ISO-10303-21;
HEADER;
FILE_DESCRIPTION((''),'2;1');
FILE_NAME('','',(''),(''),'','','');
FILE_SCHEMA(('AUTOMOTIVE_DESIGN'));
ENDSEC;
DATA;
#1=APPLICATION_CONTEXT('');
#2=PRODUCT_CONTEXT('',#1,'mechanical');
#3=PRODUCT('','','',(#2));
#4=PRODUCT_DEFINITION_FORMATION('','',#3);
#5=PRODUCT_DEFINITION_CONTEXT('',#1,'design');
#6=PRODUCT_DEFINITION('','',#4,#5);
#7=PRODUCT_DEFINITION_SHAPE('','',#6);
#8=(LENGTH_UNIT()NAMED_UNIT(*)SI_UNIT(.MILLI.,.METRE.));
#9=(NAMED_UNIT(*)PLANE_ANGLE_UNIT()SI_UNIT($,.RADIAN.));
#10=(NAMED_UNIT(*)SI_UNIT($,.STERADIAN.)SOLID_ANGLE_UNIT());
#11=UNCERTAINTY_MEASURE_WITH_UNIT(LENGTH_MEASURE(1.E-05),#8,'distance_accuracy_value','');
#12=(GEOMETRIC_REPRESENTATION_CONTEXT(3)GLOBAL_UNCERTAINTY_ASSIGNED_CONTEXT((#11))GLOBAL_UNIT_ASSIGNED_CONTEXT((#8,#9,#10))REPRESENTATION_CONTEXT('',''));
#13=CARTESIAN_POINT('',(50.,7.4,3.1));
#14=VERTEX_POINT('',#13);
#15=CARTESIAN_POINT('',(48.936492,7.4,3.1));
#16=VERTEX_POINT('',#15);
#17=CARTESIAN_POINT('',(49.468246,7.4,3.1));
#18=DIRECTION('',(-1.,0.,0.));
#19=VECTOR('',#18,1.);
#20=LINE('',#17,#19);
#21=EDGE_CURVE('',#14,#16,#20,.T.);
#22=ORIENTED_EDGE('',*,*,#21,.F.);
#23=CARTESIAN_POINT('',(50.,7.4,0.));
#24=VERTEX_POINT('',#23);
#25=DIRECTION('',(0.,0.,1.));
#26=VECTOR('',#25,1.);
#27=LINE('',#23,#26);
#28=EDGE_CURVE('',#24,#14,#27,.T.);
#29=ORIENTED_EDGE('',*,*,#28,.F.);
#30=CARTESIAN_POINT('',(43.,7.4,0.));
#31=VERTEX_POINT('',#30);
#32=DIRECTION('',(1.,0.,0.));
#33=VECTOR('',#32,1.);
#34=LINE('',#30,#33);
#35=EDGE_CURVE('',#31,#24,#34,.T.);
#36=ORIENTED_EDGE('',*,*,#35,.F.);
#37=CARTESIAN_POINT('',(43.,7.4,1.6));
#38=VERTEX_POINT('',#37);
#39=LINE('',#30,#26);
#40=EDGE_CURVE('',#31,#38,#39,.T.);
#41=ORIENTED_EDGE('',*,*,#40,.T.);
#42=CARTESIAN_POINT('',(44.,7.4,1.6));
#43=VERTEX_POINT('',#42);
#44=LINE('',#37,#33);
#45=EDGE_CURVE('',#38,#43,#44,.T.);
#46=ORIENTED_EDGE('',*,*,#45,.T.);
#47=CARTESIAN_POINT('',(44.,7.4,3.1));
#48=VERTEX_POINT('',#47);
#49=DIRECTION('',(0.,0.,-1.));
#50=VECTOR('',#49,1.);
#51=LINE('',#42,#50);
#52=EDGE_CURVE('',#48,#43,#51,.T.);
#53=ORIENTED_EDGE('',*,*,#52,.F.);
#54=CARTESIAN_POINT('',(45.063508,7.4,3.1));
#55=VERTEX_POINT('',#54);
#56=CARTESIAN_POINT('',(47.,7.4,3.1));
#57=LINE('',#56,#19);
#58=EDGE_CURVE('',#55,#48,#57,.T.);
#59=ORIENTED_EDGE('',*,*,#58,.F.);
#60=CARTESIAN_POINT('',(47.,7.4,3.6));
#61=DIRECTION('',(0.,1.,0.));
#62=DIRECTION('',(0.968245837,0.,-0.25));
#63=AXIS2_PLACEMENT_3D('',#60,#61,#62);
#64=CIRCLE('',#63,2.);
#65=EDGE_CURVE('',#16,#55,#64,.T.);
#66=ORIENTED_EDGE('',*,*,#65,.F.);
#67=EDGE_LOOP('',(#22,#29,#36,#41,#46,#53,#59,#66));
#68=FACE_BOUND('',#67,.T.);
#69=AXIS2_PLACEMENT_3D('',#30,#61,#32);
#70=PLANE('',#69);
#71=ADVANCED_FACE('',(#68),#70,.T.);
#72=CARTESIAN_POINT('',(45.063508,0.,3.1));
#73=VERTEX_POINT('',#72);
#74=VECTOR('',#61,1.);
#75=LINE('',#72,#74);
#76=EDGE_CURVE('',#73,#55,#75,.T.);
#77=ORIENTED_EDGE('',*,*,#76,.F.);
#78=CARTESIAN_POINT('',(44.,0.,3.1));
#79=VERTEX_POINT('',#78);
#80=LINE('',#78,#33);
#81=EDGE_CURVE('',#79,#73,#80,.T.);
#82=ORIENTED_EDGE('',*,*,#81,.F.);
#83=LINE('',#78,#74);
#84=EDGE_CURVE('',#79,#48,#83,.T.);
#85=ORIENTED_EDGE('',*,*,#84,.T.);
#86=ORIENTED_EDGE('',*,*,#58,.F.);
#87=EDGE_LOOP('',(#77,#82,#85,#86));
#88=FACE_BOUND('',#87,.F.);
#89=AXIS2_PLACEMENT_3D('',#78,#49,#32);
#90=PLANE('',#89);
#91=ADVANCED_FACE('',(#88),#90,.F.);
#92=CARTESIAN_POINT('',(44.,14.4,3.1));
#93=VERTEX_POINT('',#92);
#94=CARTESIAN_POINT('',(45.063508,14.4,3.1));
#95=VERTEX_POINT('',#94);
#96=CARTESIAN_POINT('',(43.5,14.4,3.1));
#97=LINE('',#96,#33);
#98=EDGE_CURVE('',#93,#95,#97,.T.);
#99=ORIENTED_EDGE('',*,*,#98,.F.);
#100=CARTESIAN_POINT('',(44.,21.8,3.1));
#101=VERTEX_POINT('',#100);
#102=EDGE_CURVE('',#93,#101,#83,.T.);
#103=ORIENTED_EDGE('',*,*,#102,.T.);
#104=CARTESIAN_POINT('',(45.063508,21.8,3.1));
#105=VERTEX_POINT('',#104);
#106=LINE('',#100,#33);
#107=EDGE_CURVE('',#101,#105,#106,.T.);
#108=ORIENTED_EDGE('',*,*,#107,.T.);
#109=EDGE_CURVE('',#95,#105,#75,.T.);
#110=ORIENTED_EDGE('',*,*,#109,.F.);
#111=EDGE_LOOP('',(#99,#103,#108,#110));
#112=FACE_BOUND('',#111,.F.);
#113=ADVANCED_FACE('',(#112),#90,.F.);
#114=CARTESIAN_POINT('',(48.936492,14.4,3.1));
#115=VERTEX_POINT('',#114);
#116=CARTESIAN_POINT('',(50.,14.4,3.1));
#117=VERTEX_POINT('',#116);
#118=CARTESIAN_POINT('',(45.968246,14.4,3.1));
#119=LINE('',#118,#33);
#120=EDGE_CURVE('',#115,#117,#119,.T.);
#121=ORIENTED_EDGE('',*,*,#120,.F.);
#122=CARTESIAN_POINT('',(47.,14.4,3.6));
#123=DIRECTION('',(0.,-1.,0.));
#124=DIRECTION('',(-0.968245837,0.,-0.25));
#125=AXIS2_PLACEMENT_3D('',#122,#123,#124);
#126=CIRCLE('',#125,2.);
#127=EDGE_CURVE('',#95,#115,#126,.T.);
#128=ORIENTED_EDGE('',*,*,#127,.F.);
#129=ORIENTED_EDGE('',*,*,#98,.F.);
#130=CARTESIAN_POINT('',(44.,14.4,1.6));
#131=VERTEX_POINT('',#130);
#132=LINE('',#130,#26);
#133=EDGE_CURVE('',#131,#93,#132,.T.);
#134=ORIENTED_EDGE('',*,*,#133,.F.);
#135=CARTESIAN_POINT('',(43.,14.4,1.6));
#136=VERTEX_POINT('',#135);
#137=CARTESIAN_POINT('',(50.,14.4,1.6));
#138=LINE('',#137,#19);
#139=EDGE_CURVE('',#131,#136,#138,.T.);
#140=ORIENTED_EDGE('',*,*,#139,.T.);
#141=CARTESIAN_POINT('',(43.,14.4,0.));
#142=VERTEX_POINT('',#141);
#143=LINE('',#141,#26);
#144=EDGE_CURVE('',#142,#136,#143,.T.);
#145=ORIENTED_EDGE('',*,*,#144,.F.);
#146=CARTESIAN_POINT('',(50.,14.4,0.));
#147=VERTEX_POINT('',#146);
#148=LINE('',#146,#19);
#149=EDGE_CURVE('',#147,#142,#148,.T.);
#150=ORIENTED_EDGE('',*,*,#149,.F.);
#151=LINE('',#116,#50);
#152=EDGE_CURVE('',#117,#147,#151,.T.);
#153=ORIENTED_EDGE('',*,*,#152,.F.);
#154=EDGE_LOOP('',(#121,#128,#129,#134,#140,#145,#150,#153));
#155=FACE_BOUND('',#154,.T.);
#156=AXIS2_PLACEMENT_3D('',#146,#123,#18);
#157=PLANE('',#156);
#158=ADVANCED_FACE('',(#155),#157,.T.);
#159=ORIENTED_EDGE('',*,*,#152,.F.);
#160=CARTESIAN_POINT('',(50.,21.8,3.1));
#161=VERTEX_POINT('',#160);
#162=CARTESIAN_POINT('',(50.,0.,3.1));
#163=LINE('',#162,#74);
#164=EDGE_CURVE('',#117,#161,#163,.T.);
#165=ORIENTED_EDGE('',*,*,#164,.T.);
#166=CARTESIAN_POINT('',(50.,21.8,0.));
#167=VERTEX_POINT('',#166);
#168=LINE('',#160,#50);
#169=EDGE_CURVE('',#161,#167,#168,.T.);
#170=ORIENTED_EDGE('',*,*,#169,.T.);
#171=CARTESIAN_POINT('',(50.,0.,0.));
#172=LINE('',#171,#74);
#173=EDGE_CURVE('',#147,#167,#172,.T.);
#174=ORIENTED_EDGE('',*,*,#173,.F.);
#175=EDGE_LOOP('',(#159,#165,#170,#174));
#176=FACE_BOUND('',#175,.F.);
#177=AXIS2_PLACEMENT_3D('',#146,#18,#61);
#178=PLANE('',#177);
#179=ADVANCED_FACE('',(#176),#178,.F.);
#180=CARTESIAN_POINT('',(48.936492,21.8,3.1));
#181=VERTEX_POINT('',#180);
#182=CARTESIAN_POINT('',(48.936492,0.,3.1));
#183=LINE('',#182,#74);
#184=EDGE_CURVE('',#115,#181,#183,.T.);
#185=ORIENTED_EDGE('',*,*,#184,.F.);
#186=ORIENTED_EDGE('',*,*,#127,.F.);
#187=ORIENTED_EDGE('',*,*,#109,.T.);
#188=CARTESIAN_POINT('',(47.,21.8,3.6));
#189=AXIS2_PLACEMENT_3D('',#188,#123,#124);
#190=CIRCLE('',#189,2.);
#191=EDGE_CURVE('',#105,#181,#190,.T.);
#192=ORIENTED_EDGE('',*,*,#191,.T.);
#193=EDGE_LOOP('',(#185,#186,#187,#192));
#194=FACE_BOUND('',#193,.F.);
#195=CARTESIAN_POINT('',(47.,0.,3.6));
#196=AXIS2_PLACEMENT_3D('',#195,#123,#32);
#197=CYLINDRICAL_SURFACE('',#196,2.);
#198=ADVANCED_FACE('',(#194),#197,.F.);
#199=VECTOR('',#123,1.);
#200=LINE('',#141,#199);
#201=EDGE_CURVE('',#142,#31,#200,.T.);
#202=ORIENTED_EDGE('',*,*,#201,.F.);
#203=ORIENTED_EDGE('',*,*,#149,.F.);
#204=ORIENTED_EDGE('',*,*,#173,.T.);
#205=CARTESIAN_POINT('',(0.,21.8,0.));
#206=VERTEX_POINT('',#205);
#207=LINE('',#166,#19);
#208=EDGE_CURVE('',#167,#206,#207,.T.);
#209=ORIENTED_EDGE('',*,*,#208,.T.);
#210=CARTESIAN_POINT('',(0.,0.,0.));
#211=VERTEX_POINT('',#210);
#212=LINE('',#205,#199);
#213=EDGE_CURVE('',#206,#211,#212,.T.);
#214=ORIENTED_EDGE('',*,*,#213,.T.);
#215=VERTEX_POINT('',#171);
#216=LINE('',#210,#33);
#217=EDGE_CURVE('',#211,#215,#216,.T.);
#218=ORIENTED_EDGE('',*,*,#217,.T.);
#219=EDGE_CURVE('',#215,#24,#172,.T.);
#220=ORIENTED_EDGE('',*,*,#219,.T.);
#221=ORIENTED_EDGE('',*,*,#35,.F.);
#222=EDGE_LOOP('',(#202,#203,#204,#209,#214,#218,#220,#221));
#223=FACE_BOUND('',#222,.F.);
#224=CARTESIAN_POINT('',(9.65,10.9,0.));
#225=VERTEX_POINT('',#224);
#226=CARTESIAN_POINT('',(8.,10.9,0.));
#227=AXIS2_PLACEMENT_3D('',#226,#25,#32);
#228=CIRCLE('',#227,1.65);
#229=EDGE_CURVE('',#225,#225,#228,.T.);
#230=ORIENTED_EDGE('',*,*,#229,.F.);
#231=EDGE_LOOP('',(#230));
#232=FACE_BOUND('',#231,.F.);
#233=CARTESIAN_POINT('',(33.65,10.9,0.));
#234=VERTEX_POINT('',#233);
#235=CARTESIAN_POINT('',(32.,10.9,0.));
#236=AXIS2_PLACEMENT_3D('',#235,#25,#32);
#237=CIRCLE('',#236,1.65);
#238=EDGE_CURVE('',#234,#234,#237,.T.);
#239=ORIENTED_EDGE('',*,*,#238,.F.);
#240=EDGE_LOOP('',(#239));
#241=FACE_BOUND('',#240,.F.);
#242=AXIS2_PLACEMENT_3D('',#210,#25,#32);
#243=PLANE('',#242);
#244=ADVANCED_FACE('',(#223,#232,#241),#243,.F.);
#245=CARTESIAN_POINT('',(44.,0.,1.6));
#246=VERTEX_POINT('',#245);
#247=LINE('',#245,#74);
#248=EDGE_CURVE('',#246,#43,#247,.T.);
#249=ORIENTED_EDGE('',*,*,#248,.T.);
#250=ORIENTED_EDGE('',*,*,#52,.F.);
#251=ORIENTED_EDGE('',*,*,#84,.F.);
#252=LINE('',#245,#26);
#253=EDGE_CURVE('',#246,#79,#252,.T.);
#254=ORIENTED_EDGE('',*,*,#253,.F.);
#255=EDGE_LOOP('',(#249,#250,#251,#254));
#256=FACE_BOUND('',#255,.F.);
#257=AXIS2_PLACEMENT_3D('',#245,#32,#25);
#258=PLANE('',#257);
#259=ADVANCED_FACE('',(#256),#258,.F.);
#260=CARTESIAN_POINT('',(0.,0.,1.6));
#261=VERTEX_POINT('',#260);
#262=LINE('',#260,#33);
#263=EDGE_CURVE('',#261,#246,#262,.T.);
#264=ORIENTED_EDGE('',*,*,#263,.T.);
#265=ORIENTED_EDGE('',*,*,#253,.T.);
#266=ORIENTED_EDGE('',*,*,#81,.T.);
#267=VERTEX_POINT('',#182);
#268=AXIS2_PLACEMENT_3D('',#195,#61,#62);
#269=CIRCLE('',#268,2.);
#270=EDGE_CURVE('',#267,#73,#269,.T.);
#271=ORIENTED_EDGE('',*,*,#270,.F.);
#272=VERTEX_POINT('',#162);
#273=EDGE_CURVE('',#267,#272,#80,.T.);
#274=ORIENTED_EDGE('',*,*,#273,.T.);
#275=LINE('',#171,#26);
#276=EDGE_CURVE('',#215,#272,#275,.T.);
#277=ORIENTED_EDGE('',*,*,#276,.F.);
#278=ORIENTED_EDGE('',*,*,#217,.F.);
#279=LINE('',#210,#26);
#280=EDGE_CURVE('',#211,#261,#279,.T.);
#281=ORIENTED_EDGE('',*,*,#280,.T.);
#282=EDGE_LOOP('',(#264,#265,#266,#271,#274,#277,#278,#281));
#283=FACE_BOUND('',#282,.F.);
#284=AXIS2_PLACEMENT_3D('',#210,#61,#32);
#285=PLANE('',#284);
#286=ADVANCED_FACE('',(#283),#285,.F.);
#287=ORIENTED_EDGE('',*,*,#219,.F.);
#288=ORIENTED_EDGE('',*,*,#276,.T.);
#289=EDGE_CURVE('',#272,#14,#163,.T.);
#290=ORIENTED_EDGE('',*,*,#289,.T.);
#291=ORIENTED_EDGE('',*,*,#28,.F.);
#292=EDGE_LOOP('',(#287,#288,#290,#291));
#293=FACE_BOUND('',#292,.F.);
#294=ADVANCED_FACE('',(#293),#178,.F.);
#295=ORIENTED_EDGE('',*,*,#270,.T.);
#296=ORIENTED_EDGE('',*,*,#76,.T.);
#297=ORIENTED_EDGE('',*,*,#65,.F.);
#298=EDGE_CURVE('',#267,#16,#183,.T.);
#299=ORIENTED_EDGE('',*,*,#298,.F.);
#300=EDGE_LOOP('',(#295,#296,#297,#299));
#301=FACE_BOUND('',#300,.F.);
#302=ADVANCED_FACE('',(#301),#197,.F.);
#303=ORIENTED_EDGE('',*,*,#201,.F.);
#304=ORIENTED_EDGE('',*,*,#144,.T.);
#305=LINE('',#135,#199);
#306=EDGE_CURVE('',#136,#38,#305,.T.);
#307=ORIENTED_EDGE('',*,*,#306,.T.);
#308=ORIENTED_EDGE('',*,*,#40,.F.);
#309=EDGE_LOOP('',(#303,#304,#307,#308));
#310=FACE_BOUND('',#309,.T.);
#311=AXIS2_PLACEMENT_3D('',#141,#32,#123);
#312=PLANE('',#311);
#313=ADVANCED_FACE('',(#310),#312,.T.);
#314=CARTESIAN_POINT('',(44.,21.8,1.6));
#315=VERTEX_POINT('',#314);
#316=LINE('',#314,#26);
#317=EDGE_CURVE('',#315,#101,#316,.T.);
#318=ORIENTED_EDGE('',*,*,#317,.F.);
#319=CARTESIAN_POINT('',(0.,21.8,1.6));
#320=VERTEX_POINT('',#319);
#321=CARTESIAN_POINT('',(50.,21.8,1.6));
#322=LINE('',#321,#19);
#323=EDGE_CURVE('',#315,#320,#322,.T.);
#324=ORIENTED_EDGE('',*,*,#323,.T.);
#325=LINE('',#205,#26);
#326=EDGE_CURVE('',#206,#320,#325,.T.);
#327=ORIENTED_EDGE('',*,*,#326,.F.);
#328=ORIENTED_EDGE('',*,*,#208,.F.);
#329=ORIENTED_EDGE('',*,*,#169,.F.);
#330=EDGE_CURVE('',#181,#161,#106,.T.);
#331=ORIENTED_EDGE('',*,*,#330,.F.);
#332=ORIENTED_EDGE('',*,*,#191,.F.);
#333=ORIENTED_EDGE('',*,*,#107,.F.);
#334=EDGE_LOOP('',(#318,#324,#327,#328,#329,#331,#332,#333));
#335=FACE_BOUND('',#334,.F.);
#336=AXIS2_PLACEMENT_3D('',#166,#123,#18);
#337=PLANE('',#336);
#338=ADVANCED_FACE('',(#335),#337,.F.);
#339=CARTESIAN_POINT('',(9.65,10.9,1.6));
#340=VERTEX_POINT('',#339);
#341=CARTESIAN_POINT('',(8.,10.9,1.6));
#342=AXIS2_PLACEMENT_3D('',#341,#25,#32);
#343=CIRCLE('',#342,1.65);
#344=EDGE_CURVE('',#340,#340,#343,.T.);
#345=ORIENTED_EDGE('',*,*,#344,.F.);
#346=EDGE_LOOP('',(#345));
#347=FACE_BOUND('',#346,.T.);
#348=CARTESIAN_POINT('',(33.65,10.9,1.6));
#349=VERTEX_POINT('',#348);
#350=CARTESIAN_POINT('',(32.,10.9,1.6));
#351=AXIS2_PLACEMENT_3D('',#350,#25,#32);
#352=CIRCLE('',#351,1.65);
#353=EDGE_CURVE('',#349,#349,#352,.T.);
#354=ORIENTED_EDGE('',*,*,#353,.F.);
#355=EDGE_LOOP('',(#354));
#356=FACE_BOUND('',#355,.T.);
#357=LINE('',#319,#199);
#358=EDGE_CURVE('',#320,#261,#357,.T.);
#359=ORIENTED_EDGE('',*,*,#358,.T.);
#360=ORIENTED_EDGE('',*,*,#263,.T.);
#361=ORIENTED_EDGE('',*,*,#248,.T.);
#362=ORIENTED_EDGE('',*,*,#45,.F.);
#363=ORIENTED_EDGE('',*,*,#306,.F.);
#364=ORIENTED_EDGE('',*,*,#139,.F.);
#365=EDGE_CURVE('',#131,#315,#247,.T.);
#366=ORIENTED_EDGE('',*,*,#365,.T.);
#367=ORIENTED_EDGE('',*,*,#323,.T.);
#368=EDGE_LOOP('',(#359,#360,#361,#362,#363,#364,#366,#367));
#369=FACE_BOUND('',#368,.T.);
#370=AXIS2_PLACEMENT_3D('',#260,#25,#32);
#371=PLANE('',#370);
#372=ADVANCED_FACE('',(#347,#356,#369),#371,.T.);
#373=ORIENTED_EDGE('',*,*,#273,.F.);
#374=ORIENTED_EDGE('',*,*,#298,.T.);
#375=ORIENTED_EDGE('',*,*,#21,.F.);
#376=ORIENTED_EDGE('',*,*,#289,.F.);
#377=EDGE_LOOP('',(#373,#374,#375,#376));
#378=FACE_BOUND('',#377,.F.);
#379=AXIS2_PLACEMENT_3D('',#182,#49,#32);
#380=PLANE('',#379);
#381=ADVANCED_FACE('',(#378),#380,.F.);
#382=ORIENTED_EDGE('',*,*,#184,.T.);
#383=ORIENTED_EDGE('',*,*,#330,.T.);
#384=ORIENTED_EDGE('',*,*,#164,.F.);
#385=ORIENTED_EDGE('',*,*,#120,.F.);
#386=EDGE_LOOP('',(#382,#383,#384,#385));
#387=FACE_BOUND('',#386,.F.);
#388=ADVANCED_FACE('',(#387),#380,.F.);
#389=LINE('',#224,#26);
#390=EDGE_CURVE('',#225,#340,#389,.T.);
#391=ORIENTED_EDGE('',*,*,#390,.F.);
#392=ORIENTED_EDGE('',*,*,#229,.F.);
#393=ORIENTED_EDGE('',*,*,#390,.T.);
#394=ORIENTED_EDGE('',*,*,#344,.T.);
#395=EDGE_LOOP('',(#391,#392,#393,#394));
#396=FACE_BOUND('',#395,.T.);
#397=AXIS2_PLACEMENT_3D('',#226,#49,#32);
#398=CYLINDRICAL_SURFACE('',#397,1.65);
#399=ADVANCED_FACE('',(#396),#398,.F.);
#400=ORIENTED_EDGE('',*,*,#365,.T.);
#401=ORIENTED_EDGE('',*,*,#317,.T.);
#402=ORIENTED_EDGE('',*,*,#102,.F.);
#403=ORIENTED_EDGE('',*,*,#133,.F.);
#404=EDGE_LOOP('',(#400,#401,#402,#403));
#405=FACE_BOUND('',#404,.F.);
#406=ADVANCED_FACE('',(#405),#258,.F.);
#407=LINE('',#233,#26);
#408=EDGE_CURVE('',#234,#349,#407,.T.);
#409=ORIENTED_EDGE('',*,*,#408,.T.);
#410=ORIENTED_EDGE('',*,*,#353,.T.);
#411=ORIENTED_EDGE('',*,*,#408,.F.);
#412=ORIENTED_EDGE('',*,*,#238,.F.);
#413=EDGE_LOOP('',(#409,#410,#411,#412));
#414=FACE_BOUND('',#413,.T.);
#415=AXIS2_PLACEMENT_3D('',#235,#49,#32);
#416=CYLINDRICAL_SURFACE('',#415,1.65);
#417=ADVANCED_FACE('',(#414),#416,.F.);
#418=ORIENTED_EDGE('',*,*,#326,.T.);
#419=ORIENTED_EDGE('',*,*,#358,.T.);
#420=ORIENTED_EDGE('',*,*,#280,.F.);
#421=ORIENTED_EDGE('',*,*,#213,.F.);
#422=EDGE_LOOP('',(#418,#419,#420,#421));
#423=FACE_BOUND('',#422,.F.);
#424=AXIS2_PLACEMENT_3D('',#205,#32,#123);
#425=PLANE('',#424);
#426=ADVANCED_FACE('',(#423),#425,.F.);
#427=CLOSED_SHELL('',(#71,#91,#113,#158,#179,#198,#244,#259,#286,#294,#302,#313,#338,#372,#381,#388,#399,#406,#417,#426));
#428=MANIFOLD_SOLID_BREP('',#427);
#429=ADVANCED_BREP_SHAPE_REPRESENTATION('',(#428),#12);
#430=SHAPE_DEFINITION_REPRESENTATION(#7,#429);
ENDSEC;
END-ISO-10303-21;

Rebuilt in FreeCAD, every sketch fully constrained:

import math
import FreeCAD as App
import Part
import Sketcher
from FreeCAD import Vector

doc = App.newDocument("Part")
params = doc.addObject("Spreadsheet::Sheet", "Params")
for row, (alias, value) in enumerate([
    ("sketch1_diameter", "3.3 mm"),
    ("sketch1_width", "50 mm"),
    ("sketch1_width2", "7 mm"),
    ("sketch1_height", "21.8 mm"),
    ("pad1_length", "1.6 mm"),
    ("sketch2_radius", "2 mm"),
    ("sketch2_width", "3 mm"),
    ("sketch2_height", "1.5 mm"),
    ("pad2_length", "21.8 mm"),
    ("sketch3_width", "7 mm"),
], start=1):
    params.set(f"A{row}", alias)
    params.set(f"B{row}", "=" + value)
    params.setAlias(f"B{row}", alias)

body = doc.addObject("PartDesign::Body", "Body")

sketch1 = body.newObject("Sketcher::SketchObject", "Sketch")
sketch1.AttachmentSupport = (doc.getObject("XY_Plane"), [""])
sketch1.MapMode = "FlatFace"
sketch1.addGeometry([
    Part.LineSegment(Vector(0, 21.8, 0), Vector(0, 0, 0)),
    Part.LineSegment(Vector(0, 0, 0), Vector(50, 0, 0)),
    Part.LineSegment(Vector(50, 0, 0), Vector(50, 7.4, 0)),
    Part.LineSegment(Vector(50, 7.4, 0), Vector(43, 7.4, 0)),
    Part.LineSegment(Vector(43, 7.4, 0), Vector(43, 14.4, 0)),
    Part.LineSegment(Vector(43, 14.4, 0), Vector(50, 14.4, 0)),
    Part.LineSegment(Vector(50, 14.4, 0), Vector(50, 21.8, 0)),
    Part.LineSegment(Vector(50, 21.8, 0), Vector(0, 21.8, 0)),
    Part.Circle(Vector(8, 10.9, 0), Vector(0, 0, 1), 1.65),
    Part.Circle(Vector(32, 10.9, 0), Vector(0, 0, 1), 1.65),
], False)
sketch1.addConstraint([
    Sketcher.Constraint("Coincident", 0, 2, 1, 1),
    Sketcher.Constraint("Coincident", 1, 2, 2, 1),
    Sketcher.Constraint("Coincident", 2, 2, 3, 1),
    Sketcher.Constraint("Coincident", 3, 2, 4, 1),
    Sketcher.Constraint("Coincident", 4, 2, 5, 1),
    Sketcher.Constraint("Coincident", 5, 2, 6, 1),
    Sketcher.Constraint("Coincident", 6, 2, 7, 1),
    Sketcher.Constraint("Coincident", 7, 2, 0, 1),
    Sketcher.Constraint("Vertical", 0),
    Sketcher.Constraint("Horizontal", 1),
    Sketcher.Constraint("Vertical", 2),
    Sketcher.Constraint("Horizontal", 3),
    Sketcher.Constraint("Vertical", 4),
    Sketcher.Constraint("Horizontal", 5),
    Sketcher.Constraint("Vertical", 6),
    Sketcher.Constraint("Horizontal", 7),
    Sketcher.Constraint("Coincident", 0, 2, -1, 1),
    Sketcher.Constraint("Equal", 8, 9),
    Sketcher.Constraint("Horizontal", 8, 3, 9, 3),
    Sketcher.Constraint("Vertical", 2, 2, 5, 2),
    Sketcher.Constraint("Equal", 5, 4),
    Sketcher.Constraint("Equal", 2, 6),
    Sketcher.Constraint("Diameter", 8, 3.3),
    Sketcher.Constraint("DistanceX", 1, 1, 1, 2, 50.0),
    Sketcher.Constraint("DistanceX", 3, 2, 3, 1, 7.0),
    Sketcher.Constraint("DistanceY", 0, 2, 0, 1, 21.8),
    Sketcher.Constraint("DistanceX", -1, 1, 8, 3, 8.0),
    Sketcher.Constraint("DistanceX", 8, 3, 9, 3, 24.0),
    Sketcher.Constraint("DistanceY", -1, 1, 8, 3, 10.9),
])
sketch1.setExpression("Constraints[22]", "Params.sketch1_diameter")
sketch1.setExpression("Constraints[23]", "Params.sketch1_width")
sketch1.setExpression("Constraints[24]", "Params.sketch1_width2")
sketch1.setExpression("Constraints[25]", "Params.sketch1_height")
pad1 = body.newObject("PartDesign::Pad", "Pad")
pad1.Profile = sketch1
pad1.setExpression("Length", "Params.pad1_length")

sketch2 = body.newObject("Sketcher::SketchObject", "Sketch001")
sketch2.AttachmentSupport = (doc.getObject("XZ_Plane"), [""])
sketch2.MapMode = "FlatFace"
sketch2.addGeometry([
    Part.LineSegment(Vector(47, 1.6, 0), Vector(50, 1.6, 0)),
    Part.LineSegment(Vector(50, 1.6, 0), Vector(50, 3.1, 0)),
    Part.LineSegment(Vector(50, 3.1, 0), Vector(48.936492, 3.1, 0)),
    Part.ArcOfCircle(Part.Circle(Vector(47, 3.6, 0), Vector(0, 0, 1), 2), math.radians(-90), math.radians(-14.477512)),
    Part.LineSegment(Vector(44, 1.6, 0), Vector(47, 1.6, 0)),
    Part.ArcOfCircle(Part.Circle(Vector(47, 3.6, 0), Vector(0, 0, 1), 2), math.radians(-165.522488), math.radians(-90)),
    Part.LineSegment(Vector(45.063508, 3.1, 0), Vector(44, 3.1, 0)),
    Part.LineSegment(Vector(44, 3.1, 0), Vector(44, 1.6, 0)),
], False)
sketch2.addConstraint([
    Sketcher.Constraint("Coincident", 0, 2, 1, 1),
    Sketcher.Constraint("Coincident", 1, 2, 2, 1),
    Sketcher.Constraint("Coincident", 2, 2, 3, 2),
    Sketcher.Constraint("Tangent", 3, 1, 0, 1),
    Sketcher.Constraint("Tangent", 4, 2, 5, 2),
    Sketcher.Constraint("Coincident", 5, 1, 6, 1),
    Sketcher.Constraint("Coincident", 6, 2, 7, 1),
    Sketcher.Constraint("Coincident", 7, 2, 4, 1),
    Sketcher.Constraint("Horizontal", 0),
    Sketcher.Constraint("Vertical", 1),
    Sketcher.Constraint("Horizontal", 2),
    Sketcher.Constraint("Horizontal", 4),
    Sketcher.Constraint("Horizontal", 6),
    Sketcher.Constraint("Vertical", 7),
    Sketcher.Constraint("Coincident", 5, 3, 3, 3),
    Sketcher.Constraint("Equal", 3, 5),
    Sketcher.Constraint("Horizontal", 2, 2, 5, 1),
    Sketcher.Constraint("Equal", 0, 4),
    Sketcher.Constraint("Radius", 3, 2.0),
    Sketcher.Constraint("DistanceX", 0, 1, 0, 2, 3.0),
    Sketcher.Constraint("DistanceY", 1, 1, 1, 2, 1.5),
    Sketcher.Constraint("DistanceX", -1, 1, 3, 3, 47.0),
    Sketcher.Constraint("DistanceY", -1, 1, 3, 3, 3.6),
])
sketch2.setExpression("Constraints[18]", "Params.sketch2_radius")
sketch2.setExpression("Constraints[19]", "Params.sketch2_width")
sketch2.setExpression("Constraints[20]", "Params.sketch2_height")
pad2 = body.newObject("PartDesign::Pad", "Pad001")
pad2.Profile = sketch2
pad2.setExpression("Length", "Params.pad2_length")
pad2.Reversed = True

sketch3 = body.newObject("Sketcher::SketchObject", "Sketch002")
sketch3.AttachmentSupport = (doc.getObject("XY_Plane"), [""])
sketch3.MapMode = "FlatFace"
sketch3.AttachmentOffset = App.Placement(Vector(0, 0, 1.6), App.Rotation())
sketch3.addGeometry([
    Part.LineSegment(Vector(43, 7.4, 0), Vector(50, 7.4, 0)),
    Part.LineSegment(Vector(50, 7.4, 0), Vector(50, 14.4, 0)),
    Part.LineSegment(Vector(50, 14.4, 0), Vector(43, 14.4, 0)),
    Part.LineSegment(Vector(43, 14.4, 0), Vector(43, 7.4, 0)),
], False)
sketch3.addConstraint([
    Sketcher.Constraint("Coincident", 0, 2, 1, 1),
    Sketcher.Constraint("Coincident", 1, 2, 2, 1),
    Sketcher.Constraint("Coincident", 2, 2, 3, 1),
    Sketcher.Constraint("Coincident", 3, 2, 0, 1),
    Sketcher.Constraint("Horizontal", 0),
    Sketcher.Constraint("Vertical", 1),
    Sketcher.Constraint("Horizontal", 2),
    Sketcher.Constraint("Vertical", 3),
    Sketcher.Constraint("Equal", 2, 1),
    Sketcher.Constraint("DistanceX", 0, 1, 0, 2, 7.0),
    Sketcher.Constraint("DistanceX", -1, 1, 0, 2, 50.0),
    Sketcher.Constraint("DistanceY", -1, 1, 0, 2, 7.4),
])
sketch3.setExpression("Constraints[9]", "Params.sketch3_width")
pocket1 = body.newObject("PartDesign::Pocket", "Pocket")
pocket1.Profile = sketch3
pocket1.Type = "ThroughAll"
pocket1.Midplane = True

doc.recompute()
